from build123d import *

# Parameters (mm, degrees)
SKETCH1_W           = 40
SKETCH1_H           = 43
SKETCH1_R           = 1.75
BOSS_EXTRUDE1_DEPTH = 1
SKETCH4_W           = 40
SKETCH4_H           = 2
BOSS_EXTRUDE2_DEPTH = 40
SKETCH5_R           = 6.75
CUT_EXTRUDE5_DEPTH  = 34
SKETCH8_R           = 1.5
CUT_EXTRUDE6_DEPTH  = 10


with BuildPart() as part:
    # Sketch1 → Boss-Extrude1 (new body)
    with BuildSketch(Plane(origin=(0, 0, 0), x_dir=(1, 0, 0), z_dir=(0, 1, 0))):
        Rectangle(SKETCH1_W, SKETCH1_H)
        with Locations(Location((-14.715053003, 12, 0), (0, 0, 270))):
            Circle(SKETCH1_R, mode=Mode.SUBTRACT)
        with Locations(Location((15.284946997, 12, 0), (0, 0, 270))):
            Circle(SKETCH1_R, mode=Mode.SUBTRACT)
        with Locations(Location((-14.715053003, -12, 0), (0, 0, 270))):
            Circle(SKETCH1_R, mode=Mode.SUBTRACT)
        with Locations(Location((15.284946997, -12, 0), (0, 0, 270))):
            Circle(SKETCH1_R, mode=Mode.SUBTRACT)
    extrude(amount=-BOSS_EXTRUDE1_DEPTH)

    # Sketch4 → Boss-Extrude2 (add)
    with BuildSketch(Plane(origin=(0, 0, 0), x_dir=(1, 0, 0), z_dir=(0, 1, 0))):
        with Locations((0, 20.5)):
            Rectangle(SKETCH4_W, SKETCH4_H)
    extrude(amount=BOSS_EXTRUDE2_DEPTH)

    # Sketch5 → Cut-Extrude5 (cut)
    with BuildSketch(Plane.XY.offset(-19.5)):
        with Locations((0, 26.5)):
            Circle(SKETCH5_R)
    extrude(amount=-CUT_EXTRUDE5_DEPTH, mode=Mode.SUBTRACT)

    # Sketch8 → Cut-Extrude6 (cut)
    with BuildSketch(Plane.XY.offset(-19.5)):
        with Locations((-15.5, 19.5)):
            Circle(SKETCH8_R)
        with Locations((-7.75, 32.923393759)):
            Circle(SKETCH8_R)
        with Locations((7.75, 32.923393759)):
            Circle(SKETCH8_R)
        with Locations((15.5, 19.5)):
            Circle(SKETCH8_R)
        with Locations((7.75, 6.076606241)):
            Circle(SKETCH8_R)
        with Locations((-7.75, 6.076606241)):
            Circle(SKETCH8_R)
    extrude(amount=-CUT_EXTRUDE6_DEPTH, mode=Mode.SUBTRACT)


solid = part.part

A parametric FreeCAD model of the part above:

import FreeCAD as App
import Part
import Sketcher

V = App.Vector
Q = App.Units.Quantity


def add_polygon(sketch, points):
    """Adds a closed chain of lines whose ends are joined by coincident constraints."""
    first, n = sketch.GeometryCount, len(points)
    for a, b in zip(points, points[1:] + points[:1]):
        sketch.addGeometry(Part.LineSegment(App.Vector(*a, 0), App.Vector(*b, 0)), False)
    for i in range(n):
        sketch.addConstraint(Sketcher.Constraint("Coincident", first + i, 2, first + (i + 1) % n, 1))

doc = App.newDocument("Part")
body = doc.addObject("PartDesign::Body", "Body")

# Sketch on XZ plane
sketch1 = body.newObject("Sketcher::SketchObject", "Sketch")
sketch1.AttachmentSupport = (doc.getObject("XZ_Plane"), [""])
sketch1.MapMode = "FlatFace"
add_polygon(sketch1, [(-20, -21.5), (-20, 21.5), (20, 21.5), (20, -21.5)])  # lines 0-3
sketch1.addGeometry(Part.Circle(V(-14.7, 12, 0), V(0, 0, 1), 1.8), False)  # 4
sketch1.addGeometry(Part.Circle(V(15.3, 12, 0), V(0, 0, 1), 1.8), False)  # 5
sketch1.addGeometry(Part.Circle(V(-14.7, -12, 0), V(0, 0, 1), 1.8), False)  # 6
sketch1.addGeometry(Part.Circle(V(15.3, -12, 0), V(0, 0, 1), 1.8), False)  # 7
sketch1.addConstraint(Sketcher.Constraint("Vertical", 0))
sketch1.addConstraint(Sketcher.Constraint("Horizontal", 1))
sketch1.addConstraint(Sketcher.Constraint("Vertical", 2))
sketch1.addConstraint(Sketcher.Constraint("Horizontal", 3))
sketch1.addConstraint(Sketcher.Constraint("Equal", 4, 5))
sketch1.addConstraint(Sketcher.Constraint("Equal", 5, 6))
sketch1.addConstraint(Sketcher.Constraint("Equal", 6, 7))
sketch1.addConstraint(Sketcher.Constraint("Symmetric", 0, 2, 2, 2, -1, 1))
sketch1.addConstraint(Sketcher.Constraint("Symmetric", 4, 3, 6, 3, -1))
sketch1.addConstraint(Sketcher.Constraint("Symmetric", 5, 3, 7, 3, -1))
sketch1.addConstraint(Sketcher.Constraint("Horizontal", 4, 3, 5, 3))
sketch1.addConstraint(Sketcher.Constraint("Diameter", 4, Q("3.5 mm")))
sketch1.addConstraint(Sketcher.Constraint("DistanceX", 1, 1, 1, 2, Q("40 mm")))
sketch1.addConstraint(Sketcher.Constraint("DistanceY", 0, 1, 0, 2, Q("43 mm")))
sketch1.addConstraint(Sketcher.Constraint("DistanceY", -1, 1, 4, 3, Q("12 mm")))
sketch1.addConstraint(Sketcher.Constraint("DistanceX", 4, 3, 5, 3, Q("30 mm")))
sketch1.addConstraint(Sketcher.Constraint("DistanceX", 4, 3, -1, 1, Q("14.715053 mm")))
pad1 = body.newObject("PartDesign::Pad", "Pad")
pad1.Profile = sketch1
pad1.Length = 1

# Sketch on XZ plane
sketch2 = body.newObject("Sketcher::SketchObject", "Sketch001")
sketch2.AttachmentSupport = (doc.getObject("XZ_Plane"), [""])
sketch2.MapMode = "FlatFace"
add_polygon(sketch2, [(-20, -21.5), (-20, -19.5), (20, -19.5), (20, -21.5)])  # lines 0-3
sketch2.addConstraint(Sketcher.Constraint("Vertical", 0))
sketch2.addConstraint(Sketcher.Constraint("Horizontal", 1))
sketch2.addConstraint(Sketcher.Constraint("Vertical", 2))
sketch2.addConstraint(Sketcher.Constraint("Horizontal", 3))
sketch2.addConstraint(Sketcher.Constraint("DistanceX", 1, 1, 1, 2, Q("40 mm")))
sketch2.addConstraint(Sketcher.Constraint("DistanceY", 0, 1, 0, 2, Q("2 mm")))
sketch2.addConstraint(Sketcher.Constraint("DistanceX", 0, 2, -1, 1, Q("20 mm")))
sketch2.addConstraint(Sketcher.Constraint("DistanceY", 0, 2, -1, 1, Q("19.5 mm")))
pad2 = body.newObject("PartDesign::Pad", "Pad001")
pad2.Profile = sketch2
pad2.Length = 40
pad2.Reversed = True

# Sketch on XY plane
sketch3 = body.newObject("Sketcher::SketchObject", "Sketch002")
sketch3.AttachmentSupport = (doc.getObject("XY_Plane"), [""])
sketch3.MapMode = "FlatFace"
sketch3.AttachmentOffset = App.Placement(V(0, 0, -19.5), App.Rotation())
sketch3.addGeometry(Part.Circle(V(0, 26, 0), V(0, 0, 1), 7), False)
sketch3.addConstraint(Sketcher.Constraint("PointOnObject", 0, 3, -2))
sketch3.addConstraint(Sketcher.Constraint("Diameter", 0, Q("13.5 mm")))
sketch3.addConstraint(Sketcher.Constraint("DistanceY", -1, 1, 0, 3, Q("26.5 mm")))
pocket1 = body.newObject("PartDesign::Pocket", "Pocket")
pocket1.Profile = sketch3
pocket1.Length = 34

# Sketch on XY plane
sketch4 = body.newObject("Sketcher::SketchObject", "Sketch003")
sketch4.AttachmentSupport = (doc.getObject("XY_Plane"), [""])
sketch4.MapMode = "FlatFace"
sketch4.AttachmentOffset = App.Placement(V(0, 0, -19.5), App.Rotation())
sketch4.addGeometry(Part.Circle(V(-15.5, 19.5, 0), V(0, 0, 1), 1.5), False)
sketch4.addGeometry(Part.Circle(V(-7.8, 32.9, 0), V(0, 0, 1), 1.5), False)
sketch4.addGeometry(Part.Circle(V(7.8, 32.9, 0), V(0, 0, 1), 1.5), False)
sketch4.addGeometry(Part.Circle(V(15.5, 19.5, 0), V(0, 0, 1), 1.5), False)
sketch4.addGeometry(Part.Circle(V(7.8, 6.1, 0), V(0, 0, 1), 1.5), False)
sketch4.addGeometry(Part.Circle(V(-7.8, 6.1, 0), V(0, 0, 1), 1.5), False)
sketch4.addConstraint(Sketcher.Constraint("Equal", 0, 1))
sketch4.addConstraint(Sketcher.Constraint("Equal", 1, 2))
sketch4.addConstraint(Sketcher.Constraint("Equal", 2, 3))
sketch4.addConstraint(Sketcher.Constraint("Equal", 3, 4))
sketch4.addConstraint(Sketcher.Constraint("Equal", 4, 5))
sketch4.addConstraint(Sketcher.Constraint("Symmetric", 1, 3, 2, 3, -2))
sketch4.addConstraint(Sketcher.Constraint("Symmetric", 0, 3, 3, 3, -2))
sketch4.addConstraint(Sketcher.Constraint("Symmetric", 4, 3, 5, 3, -2))
sketch4.addConstraint(Sketcher.Constraint("Vertical", 2, 3, 4, 3))
sketch4.addConstraint(Sketcher.Constraint("Diameter", 0, Q("3 mm")))
sketch4.addConstraint(Sketcher.Constraint("DistanceX", 0, 3, 3, 3, Q("31 mm")))
sketch4.addConstraint(Sketcher.Constraint("DistanceY", -1, 1, 0, 3, Q("19.5 mm")))
sketch4.addConstraint(Sketcher.Constraint("DistanceX", 1, 3, 2, 3, Q("15.5 mm")))
sketch4.addConstraint(Sketcher.Constraint("DistanceY", -1, 1, 1, 3, Q("32.923394 mm")))
sketch4.addConstraint(Sketcher.Constraint("DistanceY", -1, 1, 4, 3, Q("6.076606 mm")))
pocket2 = body.newObject("PartDesign::Pocket", "Pocket001")
pocket2.Profile = sketch4
pocket2.Length = 10

doc.recompute()
